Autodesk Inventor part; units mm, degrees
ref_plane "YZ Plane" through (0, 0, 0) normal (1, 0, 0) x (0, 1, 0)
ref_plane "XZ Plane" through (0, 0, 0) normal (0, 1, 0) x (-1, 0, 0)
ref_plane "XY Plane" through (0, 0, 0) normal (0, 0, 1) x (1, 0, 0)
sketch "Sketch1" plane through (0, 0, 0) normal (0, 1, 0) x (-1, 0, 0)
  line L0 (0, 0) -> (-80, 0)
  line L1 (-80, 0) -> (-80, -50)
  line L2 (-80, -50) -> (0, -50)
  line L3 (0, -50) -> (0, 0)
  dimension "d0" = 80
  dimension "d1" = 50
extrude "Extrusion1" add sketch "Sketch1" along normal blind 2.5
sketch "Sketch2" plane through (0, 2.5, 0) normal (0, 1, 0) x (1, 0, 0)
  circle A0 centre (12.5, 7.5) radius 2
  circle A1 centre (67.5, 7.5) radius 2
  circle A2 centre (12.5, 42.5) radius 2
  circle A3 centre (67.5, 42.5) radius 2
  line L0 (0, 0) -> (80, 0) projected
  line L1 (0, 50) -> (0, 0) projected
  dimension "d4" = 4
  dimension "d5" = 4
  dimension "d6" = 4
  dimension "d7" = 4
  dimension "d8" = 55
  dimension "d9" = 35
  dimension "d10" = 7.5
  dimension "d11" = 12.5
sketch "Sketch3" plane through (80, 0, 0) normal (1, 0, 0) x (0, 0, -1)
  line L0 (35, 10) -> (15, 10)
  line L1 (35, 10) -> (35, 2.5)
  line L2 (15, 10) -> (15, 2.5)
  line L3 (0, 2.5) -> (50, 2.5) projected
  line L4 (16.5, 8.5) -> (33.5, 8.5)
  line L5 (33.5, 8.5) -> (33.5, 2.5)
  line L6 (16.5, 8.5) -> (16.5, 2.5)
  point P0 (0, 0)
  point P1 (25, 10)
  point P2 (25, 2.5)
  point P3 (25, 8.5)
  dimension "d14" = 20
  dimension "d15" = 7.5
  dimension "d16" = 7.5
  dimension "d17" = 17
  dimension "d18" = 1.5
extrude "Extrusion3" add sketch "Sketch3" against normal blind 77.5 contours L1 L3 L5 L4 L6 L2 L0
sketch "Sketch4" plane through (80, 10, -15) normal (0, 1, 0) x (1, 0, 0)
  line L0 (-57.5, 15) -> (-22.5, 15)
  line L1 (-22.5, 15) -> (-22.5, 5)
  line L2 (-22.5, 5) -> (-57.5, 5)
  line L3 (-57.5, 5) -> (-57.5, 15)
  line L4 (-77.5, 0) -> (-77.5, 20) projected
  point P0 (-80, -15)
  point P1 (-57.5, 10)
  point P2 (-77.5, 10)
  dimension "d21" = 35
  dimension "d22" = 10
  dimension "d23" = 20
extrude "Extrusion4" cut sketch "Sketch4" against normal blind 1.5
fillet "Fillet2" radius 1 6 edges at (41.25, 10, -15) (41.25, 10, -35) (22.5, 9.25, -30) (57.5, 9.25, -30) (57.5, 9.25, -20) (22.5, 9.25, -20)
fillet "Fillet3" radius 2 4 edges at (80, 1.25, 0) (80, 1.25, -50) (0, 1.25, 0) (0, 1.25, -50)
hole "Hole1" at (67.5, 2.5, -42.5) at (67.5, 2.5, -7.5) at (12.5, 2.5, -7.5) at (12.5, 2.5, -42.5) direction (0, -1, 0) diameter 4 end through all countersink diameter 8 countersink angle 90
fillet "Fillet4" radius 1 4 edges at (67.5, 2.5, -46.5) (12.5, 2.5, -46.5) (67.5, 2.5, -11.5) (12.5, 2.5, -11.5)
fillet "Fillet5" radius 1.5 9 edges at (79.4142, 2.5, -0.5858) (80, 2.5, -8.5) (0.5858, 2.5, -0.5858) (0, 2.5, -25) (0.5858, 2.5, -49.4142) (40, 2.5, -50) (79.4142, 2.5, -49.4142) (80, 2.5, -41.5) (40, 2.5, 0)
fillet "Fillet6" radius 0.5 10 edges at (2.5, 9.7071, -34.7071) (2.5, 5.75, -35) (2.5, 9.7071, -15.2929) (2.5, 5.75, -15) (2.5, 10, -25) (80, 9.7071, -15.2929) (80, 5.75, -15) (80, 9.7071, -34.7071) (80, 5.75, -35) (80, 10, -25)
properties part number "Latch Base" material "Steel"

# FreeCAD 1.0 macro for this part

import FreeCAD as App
import Part
import Sketcher
from FreeCAD import Vector


def edges_at(feature, points):
    """Names of the edges that pass closest to the given points."""
    edges = feature.Shape.Edges
    near = lambda p: min(range(len(edges)), key=lambda i: edges[i].distToShape(Part.Vertex(*p))[0])
    return sorted({f"Edge{near(p) + 1}" for p in points})


def add_polygon(sketch, points):
    """Adds a closed chain of lines whose ends are joined by coincident constraints."""
    first, n = sketch.GeometryCount, len(points)
    for a, b in zip(points, points[1:] + points[:1]):
        sketch.addGeometry(Part.LineSegment(App.Vector(*a, 0), App.Vector(*b, 0)), False)
    for i in range(n):
        sketch.addConstraint(Sketcher.Constraint("Coincident", first + i, 2, first + (i + 1) % n, 1))

doc = App.newDocument("Part")
body = doc.addObject("PartDesign::Body", "Body")

# Sketch on XZ plane
sketch1 = body.newObject("Sketcher::SketchObject", "Sketch")
sketch1.AttachmentSupport = (doc.getObject("XZ_Plane"), [""])
sketch1.MapMode = "FlatFace"
add_polygon(sketch1, [(0, -50), (0, 0), (80, 0), (80, -50)])  # lines 0-3
sketch1.addConstraint([
    Sketcher.Constraint("Vertical", 0),
    Sketcher.Constraint("Horizontal", 1),
    Sketcher.Constraint("Vertical", 2),
    Sketcher.Constraint("Horizontal", 3),
    Sketcher.Constraint("Coincident", 0, 2, -1, 1),
    Sketcher.Constraint("DistanceX", 1, 1, 1, 2, 80.0),
    Sketcher.Constraint("DistanceY", 0, 1, 0, 2, 50.0),
])
pad1 = body.newObject("PartDesign::Pad", "Pad")
pad1.Profile = sketch1
pad1.Length = 2.5
pad1.Reversed = True

# Sketch on YZ plane
sketch2 = body.newObject("Sketcher::SketchObject", "Sketch001")
sketch2.AttachmentSupport = (doc.getObject("YZ_Plane"), [""])
sketch2.MapMode = "FlatFace"
sketch2.AttachmentOffset = App.Placement(Vector(0, 0, 80), App.Rotation())
add_polygon(sketch2, [(2.5, -35), (10, -35), (10, -15), (2.5, -15), (2.5, -16.5), (8.5, -16.5), (8.5, -33.5), (2.5, -33.5)])  # lines 0-7
sketch2.addConstraint([
    Sketcher.Constraint("Horizontal", 0),
    Sketcher.Constraint("Vertical", 1),
    Sketcher.Constraint("Horizontal", 2),
    Sketcher.Constraint("Vertical", 3),
    Sketcher.Constraint("Horizontal", 4),
    Sketcher.Constraint("Vertical", 5),
    Sketcher.Constraint("Horizontal", 6),
    Sketcher.Constraint("Vertical", 7),
    Sketcher.Constraint("Vertical", 3, 2, 6, 2),
    Sketcher.Constraint("Equal", 3, 7),
    Sketcher.Constraint("DistanceY", 1, 1, 1, 2, 20.0),
    Sketcher.Constraint("DistanceY", 5, 2, 5, 1, 17.0),
    Sketcher.Constraint("DistanceX", 0, 1, 0, 2, 7.5),
    Sketcher.Constraint("DistanceX", 4, 2, 1, 2, 1.5),
    Sketcher.Constraint("DistanceX", -1, 1, 0, 2, 10.0),
    Sketcher.Constraint("DistanceY", 0, 2, -1, 1, 35.0),
])
pad2 = body.newObject("PartDesign::Pad", "Pad001")
pad2.Profile = sketch2
pad2.Length = 77.5
pad2.Reversed = True

# Sketch on XZ plane
sketch3 = body.newObject("Sketcher::SketchObject", "Sketch002")
sketch3.AttachmentSupport = (doc.getObject("XZ_Plane"), [""])
sketch3.MapMode = "FlatFace"
sketch3.AttachmentOffset = App.Placement(Vector(0, 0, -10), App.Rotation())
add_polygon(sketch3, [(58, -30), (22, -30), (22, -20), (58, -20)])  # lines 0-3
sketch3.addConstraint([
    Sketcher.Constraint("Horizontal", 0),
    Sketcher.Constraint("Vertical", 1),
    Sketcher.Constraint("Horizontal", 2),
    Sketcher.Constraint("Vertical", 3),
    Sketcher.Constraint("DistanceX", 0, 2, 0, 1, 35.0),
    Sketcher.Constraint("DistanceY", 1, 1, 1, 2, 10.0),
    Sketcher.Constraint("DistanceY", 1, 2, -1, 1, 20.0),
    Sketcher.Constraint("DistanceX", -1, 1, 0, 2, 22.5),
])
pocket1 = body.newObject("PartDesign::Pocket", "Pocket")
pocket1.Profile = sketch3
pocket1.Length = 1.5
pocket1.Reversed = True
doc.recompute()

fillet = body.newObject("PartDesign::Fillet", "Fillet")
fillet.Base = (pocket1, edges_at(pocket1, [
    (41.25, 10, -15),
    (41.25, 10, -35),
    (22.5, 9.25, -30),
    (57.5, 9.25, -30),
    (57.5, 9.25, -20),
    (22.5, 9.25, -20),
]))
fillet.Radius = 1
doc.recompute()

fillet2 = body.newObject("PartDesign::Fillet", "Fillet001")
fillet2.Base = (fillet, edges_at(fillet, [
    (80, 1.25, 0),
    (80, 1.25, -50),
    (0, 1.25, 0),
    (0, 1.25, -50),
]))
fillet2.Radius = 2

# Sketch on XZ plane
sketch4 = body.newObject("Sketcher::SketchObject", "Sketch003")
sketch4.AttachmentSupport = (doc.getObject("XZ_Plane"), [""])
sketch4.MapMode = "FlatFace"
sketch4.AttachmentOffset = App.Placement(Vector(0, 0, -2.5), App.Rotation())
sketch4.addGeometry([
    Part.Circle(Vector(67.5, -42.5, 0), Vector(0, 0, 1), 2),
    Part.Circle(Vector(67.5, -7.5, 0), Vector(0, 0, 1), 2),
    Part.Circle(Vector(12.5, -7.5, 0), Vector(0, 0, 1), 2),
    Part.Circle(Vector(12.5, -42.5, 0), Vector(0, 0, 1), 2),
], False)
sketch4.addConstraint([
    Sketcher.Constraint("Equal", 0, 1),
    Sketcher.Constraint("Equal", 1, 2),
    Sketcher.Constraint("Equal", 2, 3),
    Sketcher.Constraint("Horizontal", 1, 3, 2, 3),
    Sketcher.Constraint("Horizontal", 0, 3, 3, 3),
    Sketcher.Constraint("Vertical", 0, 3, 1, 3),
    Sketcher.Constraint("Vertical", 2, 3, 3, 3),
    Sketcher.Constraint("Diameter", 0, 4.0),
    Sketcher.Constraint("DistanceY", 0, 3, 1, 3, 35.0),
    Sketcher.Constraint("DistanceX", 2, 3, 1, 3, 55.0),
    Sketcher.Constraint("DistanceX", -1, 1, 0, 3, 67.5),
    Sketcher.Constraint("DistanceY", 0, 3, -1, 1, 42.5),
])
doc.recompute()
hole = body.newObject("PartDesign::Hole", "Hole")
hole.Profile = sketch4
hole.ThreadType = "None"
hole.Diameter = 4
hole.DepthType = "ThroughAll"
hole.HoleCutType = "Countersink"
hole.HoleCutDiameter = 8
hole.HoleCutCountersinkAngle = 90
hole.Reversed = True
doc.recompute()

fillet3 = body.newObject("PartDesign::Fillet", "Fillet002")
fillet3.Base = (hole, edges_at(hole, [
    (67.5, 2.5, -46.5),
    (12.5, 2.5, -46.5),
    (67.5, 2.5, -11.5),
    (12.5, 2.5, -11.5),
]))
fillet3.Radius = 1
doc.recompute()

fillet4 = body.newObject("PartDesign::Fillet", "Fillet003")
fillet4.Base = (fillet3, edges_at(fillet3, [
    (79.414, 2.5, -0.586),
    (80, 2.5, -8.5),
    (0.586, 2.5, -0.586),
    (0, 2.5, -25),
    (0.586, 2.5, -49.414),
    (40, 2.5, -50),
    (79.414, 2.5, -49.414),
    (80, 2.5, -41.5),
    (40, 2.5, 0),
]))
fillet4.Radius = 1.5
doc.recompute()

fillet5 = body.newObject("PartDesign::Fillet", "Fillet004")
fillet5.Base = (fillet4, edges_at(fillet4, [
    (2.5, 9.707, -34.707),
    (2.5, 5.75, -35),
    (2.5, 9.707, -15.293),
    (2.5, 5.75, -15),
    (2.5, 10, -25),
    (80, 9.707, -15.293),
    (80, 5.75, -15),
    (80, 9.707, -34.707),
    (80, 5.75, -35),
    (80, 10, -25),
]))
fillet5.Radius = 0.5

doc.recompute()
